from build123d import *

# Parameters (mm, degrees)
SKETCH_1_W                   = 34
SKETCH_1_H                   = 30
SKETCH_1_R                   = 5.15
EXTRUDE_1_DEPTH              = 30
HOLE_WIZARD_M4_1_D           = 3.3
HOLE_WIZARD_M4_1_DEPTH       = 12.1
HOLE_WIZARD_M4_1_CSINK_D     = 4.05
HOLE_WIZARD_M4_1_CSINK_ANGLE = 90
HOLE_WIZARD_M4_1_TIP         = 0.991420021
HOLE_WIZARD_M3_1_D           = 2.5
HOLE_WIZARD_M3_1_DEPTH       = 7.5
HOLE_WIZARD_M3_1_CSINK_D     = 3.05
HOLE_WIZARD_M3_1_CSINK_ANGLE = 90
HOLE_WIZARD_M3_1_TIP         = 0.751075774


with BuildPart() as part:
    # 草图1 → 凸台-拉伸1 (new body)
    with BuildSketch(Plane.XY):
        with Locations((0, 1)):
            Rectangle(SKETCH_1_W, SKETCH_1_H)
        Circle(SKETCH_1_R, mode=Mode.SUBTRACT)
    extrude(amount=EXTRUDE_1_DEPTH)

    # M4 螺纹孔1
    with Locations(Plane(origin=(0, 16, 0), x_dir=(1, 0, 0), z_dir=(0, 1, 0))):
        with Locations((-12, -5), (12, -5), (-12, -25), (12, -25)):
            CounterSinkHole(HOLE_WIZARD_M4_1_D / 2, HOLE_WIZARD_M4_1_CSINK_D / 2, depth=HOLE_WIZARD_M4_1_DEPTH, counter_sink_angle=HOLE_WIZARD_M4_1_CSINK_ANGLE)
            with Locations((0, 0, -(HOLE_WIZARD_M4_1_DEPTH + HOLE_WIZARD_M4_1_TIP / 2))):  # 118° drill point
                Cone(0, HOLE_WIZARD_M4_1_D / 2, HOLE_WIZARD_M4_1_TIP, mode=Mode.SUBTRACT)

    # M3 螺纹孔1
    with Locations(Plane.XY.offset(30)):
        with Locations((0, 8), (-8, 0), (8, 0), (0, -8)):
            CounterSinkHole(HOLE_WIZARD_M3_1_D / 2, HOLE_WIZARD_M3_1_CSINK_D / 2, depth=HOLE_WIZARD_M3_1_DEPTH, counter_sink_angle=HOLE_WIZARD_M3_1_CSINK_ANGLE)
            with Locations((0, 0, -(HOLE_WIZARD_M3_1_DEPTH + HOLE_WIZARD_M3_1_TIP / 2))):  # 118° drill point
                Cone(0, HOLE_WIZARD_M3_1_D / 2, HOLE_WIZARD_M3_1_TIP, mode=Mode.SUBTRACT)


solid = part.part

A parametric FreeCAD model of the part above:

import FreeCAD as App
import Part
import Sketcher
from FreeCAD import Vector
Q = App.Units.Quantity

doc = App.newDocument("Part")
body = doc.addObject("PartDesign::Body", "Body")

sketch1 = body.newObject("Sketcher::SketchObject", "Sketch")
sketch1.AttachmentSupport = (doc.getObject("XY_Plane"), [""])
sketch1.MapMode = "FlatFace"
sketch1.addGeometry(Part.LineSegment(Vector(-17, 16, 0), Vector(-17, -14, 0)), False)
sketch1.addGeometry(Part.LineSegment(Vector(-17, -14, 0), Vector(17, -14, 0)), False)
sketch1.addGeometry(Part.LineSegment(Vector(17, -14, 0), Vector(17, 16, 0)), False)
sketch1.addGeometry(Part.LineSegment(Vector(17, 16, 0), Vector(-17, 16, 0)), False)
sketch1.addGeometry(Part.Circle(Vector(0, 0, 0), Vector(0, 0, 1), 5.15), False)
sketch1.addConstraint(Sketcher.Constraint("Coincident", 0, 2, 1, 1))
sketch1.addConstraint(Sketcher.Constraint("Coincident", 1, 2, 2, 1))
sketch1.addConstraint(Sketcher.Constraint("Coincident", 2, 2, 3, 1))
sketch1.addConstraint(Sketcher.Constraint("Coincident", 3, 2, 0, 1))
sketch1.addConstraint(Sketcher.Constraint("Vertical", 0))
sketch1.addConstraint(Sketcher.Constraint("Horizontal", 1))
sketch1.addConstraint(Sketcher.Constraint("Vertical", 2))
sketch1.addConstraint(Sketcher.Constraint("Horizontal", 3))
sketch1.addConstraint(Sketcher.Constraint("Coincident", 4, 3, -1, 1))
sketch1.addConstraint(Sketcher.Constraint("Diameter", 4, Q("10.3 mm")))
sketch1.addConstraint(Sketcher.Constraint("DistanceX", 1, 1, 1, 2, Q("34 mm")))
sketch1.addConstraint(Sketcher.Constraint("DistanceY", 0, 2, 0, 1, Q("30 mm")))
sketch1.addConstraint(Sketcher.Constraint("DistanceX", 0, 2, -1, 1, Q("17 mm")))
sketch1.addConstraint(Sketcher.Constraint("DistanceY", 0, 2, -1, 1, Q("14 mm")))
pad1 = body.newObject("PartDesign::Pad", "Pad")
pad1.Profile = sketch1
pad1.Length = 30

sketch2 = body.newObject("Sketcher::SketchObject", "Sketch001")
sketch2.AttachmentSupport = (doc.getObject("XZ_Plane"), [""])
sketch2.MapMode = "FlatFace"
sketch2.AttachmentOffset = App.Placement(Vector(0, 0, -16), App.Rotation())
sketch2.addGeometry(Part.Circle(Vector(-12, 5, 0), Vector(0, 0, 1), 1.65), False)
sketch2.addGeometry(Part.Circle(Vector(12, 5, 0), Vector(0, 0, 1), 1.65), False)
sketch2.addGeometry(Part.Circle(Vector(-12, 25, 0), Vector(0, 0, 1), 1.65), False)
sketch2.addGeometry(Part.Circle(Vector(12, 25, 0), Vector(0, 0, 1), 1.65), False)
sketch2.addConstraint(Sketcher.Constraint("Equal", 0, 1))
sketch2.addConstraint(Sketcher.Constraint("Equal", 1, 2))
sketch2.addConstraint(Sketcher.Constraint("Equal", 2, 3))
sketch2.addConstraint(Sketcher.Constraint("Symmetric", 0, 3, 1, 3, -2))
sketch2.addConstraint(Sketcher.Constraint("Symmetric", 2, 3, 3, 3, -2))
sketch2.addConstraint(Sketcher.Constraint("Vertical", 0, 3, 2, 3))
sketch2.addConstraint(Sketcher.Constraint("Diameter", 0, Q("3.3 mm")))
sketch2.addConstraint(Sketcher.Constraint("DistanceX", 0, 3, -1, 1, Q("12 mm")))
sketch2.addConstraint(Sketcher.Constraint("DistanceY", -1, 1, 0, 3, Q("5 mm")))
sketch2.addConstraint(Sketcher.Constraint("DistanceY", -1, 1, 2, 3, Q("25 mm")))
doc.recompute()
hole = body.newObject("PartDesign::Hole", "Hole")
hole.Profile = sketch2
hole.ThreadType = "None"
hole.Diameter = 3.3
hole.DepthType = "Dimension"
hole.Depth = 12.1
hole.DrillPoint = "Angled"
hole.DrillPointAngle = 118
hole.HoleCutType = "Countersink"
hole.HoleCutDiameter = 4.05
hole.HoleCutCountersinkAngle = 90
hole.Reversed = True

sketch3 = body.newObject("Sketcher::SketchObject", "Sketch002")
sketch3.AttachmentSupport = (doc.getObject("XY_Plane"), [""])
sketch3.MapMode = "FlatFace"
sketch3.AttachmentOffset = App.Placement(Vector(0, 0, 30), App.Rotation())
sketch3.addGeometry(Part.Circle(Vector(0, 8, 0), Vector(0, 0, 1), 1.25), False)
sketch3.addGeometry(Part.Circle(Vector(-8, 0, 0), Vector(0, 0, 1), 1.25), False)
sketch3.addGeometry(Part.Circle(Vector(8, 0, 0), Vector(0, 0, 1), 1.25), False)
sketch3.addGeometry(Part.Circle(Vector(0, -8, 0), Vector(0, 0, 1), 1.25), False)
sketch3.addConstraint(Sketcher.Constraint("Equal", 0, 1))
sketch3.addConstraint(Sketcher.Constraint("Equal", 1, 2))
sketch3.addConstraint(Sketcher.Constraint("Equal", 2, 3))
sketch3.addConstraint(Sketcher.Constraint("Symmetric", 1, 3, 2, 3, -1, 1))
sketch3.addConstraint(Sketcher.Constraint("Symmetric", 0, 3, 3, 3, -1, 1))
sketch3.addConstraint(Sketcher.Constraint("PointOnObject", 0, 3, -2))
sketch3.addConstraint(Sketcher.Constraint("PointOnObject", 1, 3, -1))
sketch3.addConstraint(Sketcher.Constraint("Diameter", 0, Q("2.5 mm")))
sketch3.addConstraint(Sketcher.Constraint("DistanceY", -1, 1, 0, 3, Q("8 mm")))
sketch3.addConstraint(Sketcher.Constraint("DistanceX", 1, 3, -1, 1, Q("8 mm")))
doc.recompute()
hole2 = body.newObject("PartDesign::Hole", "Hole001")
hole2.Profile = sketch3
hole2.ThreadType = "None"
hole2.Diameter = 2.5
hole2.DepthType = "Dimension"
hole2.Depth = 7.5
hole2.DrillPoint = "Angled"
hole2.DrillPointAngle = 118
hole2.HoleCutType = "Countersink"
hole2.HoleCutDiameter = 3.05
hole2.HoleCutCountersinkAngle = 90

doc.recompute()
